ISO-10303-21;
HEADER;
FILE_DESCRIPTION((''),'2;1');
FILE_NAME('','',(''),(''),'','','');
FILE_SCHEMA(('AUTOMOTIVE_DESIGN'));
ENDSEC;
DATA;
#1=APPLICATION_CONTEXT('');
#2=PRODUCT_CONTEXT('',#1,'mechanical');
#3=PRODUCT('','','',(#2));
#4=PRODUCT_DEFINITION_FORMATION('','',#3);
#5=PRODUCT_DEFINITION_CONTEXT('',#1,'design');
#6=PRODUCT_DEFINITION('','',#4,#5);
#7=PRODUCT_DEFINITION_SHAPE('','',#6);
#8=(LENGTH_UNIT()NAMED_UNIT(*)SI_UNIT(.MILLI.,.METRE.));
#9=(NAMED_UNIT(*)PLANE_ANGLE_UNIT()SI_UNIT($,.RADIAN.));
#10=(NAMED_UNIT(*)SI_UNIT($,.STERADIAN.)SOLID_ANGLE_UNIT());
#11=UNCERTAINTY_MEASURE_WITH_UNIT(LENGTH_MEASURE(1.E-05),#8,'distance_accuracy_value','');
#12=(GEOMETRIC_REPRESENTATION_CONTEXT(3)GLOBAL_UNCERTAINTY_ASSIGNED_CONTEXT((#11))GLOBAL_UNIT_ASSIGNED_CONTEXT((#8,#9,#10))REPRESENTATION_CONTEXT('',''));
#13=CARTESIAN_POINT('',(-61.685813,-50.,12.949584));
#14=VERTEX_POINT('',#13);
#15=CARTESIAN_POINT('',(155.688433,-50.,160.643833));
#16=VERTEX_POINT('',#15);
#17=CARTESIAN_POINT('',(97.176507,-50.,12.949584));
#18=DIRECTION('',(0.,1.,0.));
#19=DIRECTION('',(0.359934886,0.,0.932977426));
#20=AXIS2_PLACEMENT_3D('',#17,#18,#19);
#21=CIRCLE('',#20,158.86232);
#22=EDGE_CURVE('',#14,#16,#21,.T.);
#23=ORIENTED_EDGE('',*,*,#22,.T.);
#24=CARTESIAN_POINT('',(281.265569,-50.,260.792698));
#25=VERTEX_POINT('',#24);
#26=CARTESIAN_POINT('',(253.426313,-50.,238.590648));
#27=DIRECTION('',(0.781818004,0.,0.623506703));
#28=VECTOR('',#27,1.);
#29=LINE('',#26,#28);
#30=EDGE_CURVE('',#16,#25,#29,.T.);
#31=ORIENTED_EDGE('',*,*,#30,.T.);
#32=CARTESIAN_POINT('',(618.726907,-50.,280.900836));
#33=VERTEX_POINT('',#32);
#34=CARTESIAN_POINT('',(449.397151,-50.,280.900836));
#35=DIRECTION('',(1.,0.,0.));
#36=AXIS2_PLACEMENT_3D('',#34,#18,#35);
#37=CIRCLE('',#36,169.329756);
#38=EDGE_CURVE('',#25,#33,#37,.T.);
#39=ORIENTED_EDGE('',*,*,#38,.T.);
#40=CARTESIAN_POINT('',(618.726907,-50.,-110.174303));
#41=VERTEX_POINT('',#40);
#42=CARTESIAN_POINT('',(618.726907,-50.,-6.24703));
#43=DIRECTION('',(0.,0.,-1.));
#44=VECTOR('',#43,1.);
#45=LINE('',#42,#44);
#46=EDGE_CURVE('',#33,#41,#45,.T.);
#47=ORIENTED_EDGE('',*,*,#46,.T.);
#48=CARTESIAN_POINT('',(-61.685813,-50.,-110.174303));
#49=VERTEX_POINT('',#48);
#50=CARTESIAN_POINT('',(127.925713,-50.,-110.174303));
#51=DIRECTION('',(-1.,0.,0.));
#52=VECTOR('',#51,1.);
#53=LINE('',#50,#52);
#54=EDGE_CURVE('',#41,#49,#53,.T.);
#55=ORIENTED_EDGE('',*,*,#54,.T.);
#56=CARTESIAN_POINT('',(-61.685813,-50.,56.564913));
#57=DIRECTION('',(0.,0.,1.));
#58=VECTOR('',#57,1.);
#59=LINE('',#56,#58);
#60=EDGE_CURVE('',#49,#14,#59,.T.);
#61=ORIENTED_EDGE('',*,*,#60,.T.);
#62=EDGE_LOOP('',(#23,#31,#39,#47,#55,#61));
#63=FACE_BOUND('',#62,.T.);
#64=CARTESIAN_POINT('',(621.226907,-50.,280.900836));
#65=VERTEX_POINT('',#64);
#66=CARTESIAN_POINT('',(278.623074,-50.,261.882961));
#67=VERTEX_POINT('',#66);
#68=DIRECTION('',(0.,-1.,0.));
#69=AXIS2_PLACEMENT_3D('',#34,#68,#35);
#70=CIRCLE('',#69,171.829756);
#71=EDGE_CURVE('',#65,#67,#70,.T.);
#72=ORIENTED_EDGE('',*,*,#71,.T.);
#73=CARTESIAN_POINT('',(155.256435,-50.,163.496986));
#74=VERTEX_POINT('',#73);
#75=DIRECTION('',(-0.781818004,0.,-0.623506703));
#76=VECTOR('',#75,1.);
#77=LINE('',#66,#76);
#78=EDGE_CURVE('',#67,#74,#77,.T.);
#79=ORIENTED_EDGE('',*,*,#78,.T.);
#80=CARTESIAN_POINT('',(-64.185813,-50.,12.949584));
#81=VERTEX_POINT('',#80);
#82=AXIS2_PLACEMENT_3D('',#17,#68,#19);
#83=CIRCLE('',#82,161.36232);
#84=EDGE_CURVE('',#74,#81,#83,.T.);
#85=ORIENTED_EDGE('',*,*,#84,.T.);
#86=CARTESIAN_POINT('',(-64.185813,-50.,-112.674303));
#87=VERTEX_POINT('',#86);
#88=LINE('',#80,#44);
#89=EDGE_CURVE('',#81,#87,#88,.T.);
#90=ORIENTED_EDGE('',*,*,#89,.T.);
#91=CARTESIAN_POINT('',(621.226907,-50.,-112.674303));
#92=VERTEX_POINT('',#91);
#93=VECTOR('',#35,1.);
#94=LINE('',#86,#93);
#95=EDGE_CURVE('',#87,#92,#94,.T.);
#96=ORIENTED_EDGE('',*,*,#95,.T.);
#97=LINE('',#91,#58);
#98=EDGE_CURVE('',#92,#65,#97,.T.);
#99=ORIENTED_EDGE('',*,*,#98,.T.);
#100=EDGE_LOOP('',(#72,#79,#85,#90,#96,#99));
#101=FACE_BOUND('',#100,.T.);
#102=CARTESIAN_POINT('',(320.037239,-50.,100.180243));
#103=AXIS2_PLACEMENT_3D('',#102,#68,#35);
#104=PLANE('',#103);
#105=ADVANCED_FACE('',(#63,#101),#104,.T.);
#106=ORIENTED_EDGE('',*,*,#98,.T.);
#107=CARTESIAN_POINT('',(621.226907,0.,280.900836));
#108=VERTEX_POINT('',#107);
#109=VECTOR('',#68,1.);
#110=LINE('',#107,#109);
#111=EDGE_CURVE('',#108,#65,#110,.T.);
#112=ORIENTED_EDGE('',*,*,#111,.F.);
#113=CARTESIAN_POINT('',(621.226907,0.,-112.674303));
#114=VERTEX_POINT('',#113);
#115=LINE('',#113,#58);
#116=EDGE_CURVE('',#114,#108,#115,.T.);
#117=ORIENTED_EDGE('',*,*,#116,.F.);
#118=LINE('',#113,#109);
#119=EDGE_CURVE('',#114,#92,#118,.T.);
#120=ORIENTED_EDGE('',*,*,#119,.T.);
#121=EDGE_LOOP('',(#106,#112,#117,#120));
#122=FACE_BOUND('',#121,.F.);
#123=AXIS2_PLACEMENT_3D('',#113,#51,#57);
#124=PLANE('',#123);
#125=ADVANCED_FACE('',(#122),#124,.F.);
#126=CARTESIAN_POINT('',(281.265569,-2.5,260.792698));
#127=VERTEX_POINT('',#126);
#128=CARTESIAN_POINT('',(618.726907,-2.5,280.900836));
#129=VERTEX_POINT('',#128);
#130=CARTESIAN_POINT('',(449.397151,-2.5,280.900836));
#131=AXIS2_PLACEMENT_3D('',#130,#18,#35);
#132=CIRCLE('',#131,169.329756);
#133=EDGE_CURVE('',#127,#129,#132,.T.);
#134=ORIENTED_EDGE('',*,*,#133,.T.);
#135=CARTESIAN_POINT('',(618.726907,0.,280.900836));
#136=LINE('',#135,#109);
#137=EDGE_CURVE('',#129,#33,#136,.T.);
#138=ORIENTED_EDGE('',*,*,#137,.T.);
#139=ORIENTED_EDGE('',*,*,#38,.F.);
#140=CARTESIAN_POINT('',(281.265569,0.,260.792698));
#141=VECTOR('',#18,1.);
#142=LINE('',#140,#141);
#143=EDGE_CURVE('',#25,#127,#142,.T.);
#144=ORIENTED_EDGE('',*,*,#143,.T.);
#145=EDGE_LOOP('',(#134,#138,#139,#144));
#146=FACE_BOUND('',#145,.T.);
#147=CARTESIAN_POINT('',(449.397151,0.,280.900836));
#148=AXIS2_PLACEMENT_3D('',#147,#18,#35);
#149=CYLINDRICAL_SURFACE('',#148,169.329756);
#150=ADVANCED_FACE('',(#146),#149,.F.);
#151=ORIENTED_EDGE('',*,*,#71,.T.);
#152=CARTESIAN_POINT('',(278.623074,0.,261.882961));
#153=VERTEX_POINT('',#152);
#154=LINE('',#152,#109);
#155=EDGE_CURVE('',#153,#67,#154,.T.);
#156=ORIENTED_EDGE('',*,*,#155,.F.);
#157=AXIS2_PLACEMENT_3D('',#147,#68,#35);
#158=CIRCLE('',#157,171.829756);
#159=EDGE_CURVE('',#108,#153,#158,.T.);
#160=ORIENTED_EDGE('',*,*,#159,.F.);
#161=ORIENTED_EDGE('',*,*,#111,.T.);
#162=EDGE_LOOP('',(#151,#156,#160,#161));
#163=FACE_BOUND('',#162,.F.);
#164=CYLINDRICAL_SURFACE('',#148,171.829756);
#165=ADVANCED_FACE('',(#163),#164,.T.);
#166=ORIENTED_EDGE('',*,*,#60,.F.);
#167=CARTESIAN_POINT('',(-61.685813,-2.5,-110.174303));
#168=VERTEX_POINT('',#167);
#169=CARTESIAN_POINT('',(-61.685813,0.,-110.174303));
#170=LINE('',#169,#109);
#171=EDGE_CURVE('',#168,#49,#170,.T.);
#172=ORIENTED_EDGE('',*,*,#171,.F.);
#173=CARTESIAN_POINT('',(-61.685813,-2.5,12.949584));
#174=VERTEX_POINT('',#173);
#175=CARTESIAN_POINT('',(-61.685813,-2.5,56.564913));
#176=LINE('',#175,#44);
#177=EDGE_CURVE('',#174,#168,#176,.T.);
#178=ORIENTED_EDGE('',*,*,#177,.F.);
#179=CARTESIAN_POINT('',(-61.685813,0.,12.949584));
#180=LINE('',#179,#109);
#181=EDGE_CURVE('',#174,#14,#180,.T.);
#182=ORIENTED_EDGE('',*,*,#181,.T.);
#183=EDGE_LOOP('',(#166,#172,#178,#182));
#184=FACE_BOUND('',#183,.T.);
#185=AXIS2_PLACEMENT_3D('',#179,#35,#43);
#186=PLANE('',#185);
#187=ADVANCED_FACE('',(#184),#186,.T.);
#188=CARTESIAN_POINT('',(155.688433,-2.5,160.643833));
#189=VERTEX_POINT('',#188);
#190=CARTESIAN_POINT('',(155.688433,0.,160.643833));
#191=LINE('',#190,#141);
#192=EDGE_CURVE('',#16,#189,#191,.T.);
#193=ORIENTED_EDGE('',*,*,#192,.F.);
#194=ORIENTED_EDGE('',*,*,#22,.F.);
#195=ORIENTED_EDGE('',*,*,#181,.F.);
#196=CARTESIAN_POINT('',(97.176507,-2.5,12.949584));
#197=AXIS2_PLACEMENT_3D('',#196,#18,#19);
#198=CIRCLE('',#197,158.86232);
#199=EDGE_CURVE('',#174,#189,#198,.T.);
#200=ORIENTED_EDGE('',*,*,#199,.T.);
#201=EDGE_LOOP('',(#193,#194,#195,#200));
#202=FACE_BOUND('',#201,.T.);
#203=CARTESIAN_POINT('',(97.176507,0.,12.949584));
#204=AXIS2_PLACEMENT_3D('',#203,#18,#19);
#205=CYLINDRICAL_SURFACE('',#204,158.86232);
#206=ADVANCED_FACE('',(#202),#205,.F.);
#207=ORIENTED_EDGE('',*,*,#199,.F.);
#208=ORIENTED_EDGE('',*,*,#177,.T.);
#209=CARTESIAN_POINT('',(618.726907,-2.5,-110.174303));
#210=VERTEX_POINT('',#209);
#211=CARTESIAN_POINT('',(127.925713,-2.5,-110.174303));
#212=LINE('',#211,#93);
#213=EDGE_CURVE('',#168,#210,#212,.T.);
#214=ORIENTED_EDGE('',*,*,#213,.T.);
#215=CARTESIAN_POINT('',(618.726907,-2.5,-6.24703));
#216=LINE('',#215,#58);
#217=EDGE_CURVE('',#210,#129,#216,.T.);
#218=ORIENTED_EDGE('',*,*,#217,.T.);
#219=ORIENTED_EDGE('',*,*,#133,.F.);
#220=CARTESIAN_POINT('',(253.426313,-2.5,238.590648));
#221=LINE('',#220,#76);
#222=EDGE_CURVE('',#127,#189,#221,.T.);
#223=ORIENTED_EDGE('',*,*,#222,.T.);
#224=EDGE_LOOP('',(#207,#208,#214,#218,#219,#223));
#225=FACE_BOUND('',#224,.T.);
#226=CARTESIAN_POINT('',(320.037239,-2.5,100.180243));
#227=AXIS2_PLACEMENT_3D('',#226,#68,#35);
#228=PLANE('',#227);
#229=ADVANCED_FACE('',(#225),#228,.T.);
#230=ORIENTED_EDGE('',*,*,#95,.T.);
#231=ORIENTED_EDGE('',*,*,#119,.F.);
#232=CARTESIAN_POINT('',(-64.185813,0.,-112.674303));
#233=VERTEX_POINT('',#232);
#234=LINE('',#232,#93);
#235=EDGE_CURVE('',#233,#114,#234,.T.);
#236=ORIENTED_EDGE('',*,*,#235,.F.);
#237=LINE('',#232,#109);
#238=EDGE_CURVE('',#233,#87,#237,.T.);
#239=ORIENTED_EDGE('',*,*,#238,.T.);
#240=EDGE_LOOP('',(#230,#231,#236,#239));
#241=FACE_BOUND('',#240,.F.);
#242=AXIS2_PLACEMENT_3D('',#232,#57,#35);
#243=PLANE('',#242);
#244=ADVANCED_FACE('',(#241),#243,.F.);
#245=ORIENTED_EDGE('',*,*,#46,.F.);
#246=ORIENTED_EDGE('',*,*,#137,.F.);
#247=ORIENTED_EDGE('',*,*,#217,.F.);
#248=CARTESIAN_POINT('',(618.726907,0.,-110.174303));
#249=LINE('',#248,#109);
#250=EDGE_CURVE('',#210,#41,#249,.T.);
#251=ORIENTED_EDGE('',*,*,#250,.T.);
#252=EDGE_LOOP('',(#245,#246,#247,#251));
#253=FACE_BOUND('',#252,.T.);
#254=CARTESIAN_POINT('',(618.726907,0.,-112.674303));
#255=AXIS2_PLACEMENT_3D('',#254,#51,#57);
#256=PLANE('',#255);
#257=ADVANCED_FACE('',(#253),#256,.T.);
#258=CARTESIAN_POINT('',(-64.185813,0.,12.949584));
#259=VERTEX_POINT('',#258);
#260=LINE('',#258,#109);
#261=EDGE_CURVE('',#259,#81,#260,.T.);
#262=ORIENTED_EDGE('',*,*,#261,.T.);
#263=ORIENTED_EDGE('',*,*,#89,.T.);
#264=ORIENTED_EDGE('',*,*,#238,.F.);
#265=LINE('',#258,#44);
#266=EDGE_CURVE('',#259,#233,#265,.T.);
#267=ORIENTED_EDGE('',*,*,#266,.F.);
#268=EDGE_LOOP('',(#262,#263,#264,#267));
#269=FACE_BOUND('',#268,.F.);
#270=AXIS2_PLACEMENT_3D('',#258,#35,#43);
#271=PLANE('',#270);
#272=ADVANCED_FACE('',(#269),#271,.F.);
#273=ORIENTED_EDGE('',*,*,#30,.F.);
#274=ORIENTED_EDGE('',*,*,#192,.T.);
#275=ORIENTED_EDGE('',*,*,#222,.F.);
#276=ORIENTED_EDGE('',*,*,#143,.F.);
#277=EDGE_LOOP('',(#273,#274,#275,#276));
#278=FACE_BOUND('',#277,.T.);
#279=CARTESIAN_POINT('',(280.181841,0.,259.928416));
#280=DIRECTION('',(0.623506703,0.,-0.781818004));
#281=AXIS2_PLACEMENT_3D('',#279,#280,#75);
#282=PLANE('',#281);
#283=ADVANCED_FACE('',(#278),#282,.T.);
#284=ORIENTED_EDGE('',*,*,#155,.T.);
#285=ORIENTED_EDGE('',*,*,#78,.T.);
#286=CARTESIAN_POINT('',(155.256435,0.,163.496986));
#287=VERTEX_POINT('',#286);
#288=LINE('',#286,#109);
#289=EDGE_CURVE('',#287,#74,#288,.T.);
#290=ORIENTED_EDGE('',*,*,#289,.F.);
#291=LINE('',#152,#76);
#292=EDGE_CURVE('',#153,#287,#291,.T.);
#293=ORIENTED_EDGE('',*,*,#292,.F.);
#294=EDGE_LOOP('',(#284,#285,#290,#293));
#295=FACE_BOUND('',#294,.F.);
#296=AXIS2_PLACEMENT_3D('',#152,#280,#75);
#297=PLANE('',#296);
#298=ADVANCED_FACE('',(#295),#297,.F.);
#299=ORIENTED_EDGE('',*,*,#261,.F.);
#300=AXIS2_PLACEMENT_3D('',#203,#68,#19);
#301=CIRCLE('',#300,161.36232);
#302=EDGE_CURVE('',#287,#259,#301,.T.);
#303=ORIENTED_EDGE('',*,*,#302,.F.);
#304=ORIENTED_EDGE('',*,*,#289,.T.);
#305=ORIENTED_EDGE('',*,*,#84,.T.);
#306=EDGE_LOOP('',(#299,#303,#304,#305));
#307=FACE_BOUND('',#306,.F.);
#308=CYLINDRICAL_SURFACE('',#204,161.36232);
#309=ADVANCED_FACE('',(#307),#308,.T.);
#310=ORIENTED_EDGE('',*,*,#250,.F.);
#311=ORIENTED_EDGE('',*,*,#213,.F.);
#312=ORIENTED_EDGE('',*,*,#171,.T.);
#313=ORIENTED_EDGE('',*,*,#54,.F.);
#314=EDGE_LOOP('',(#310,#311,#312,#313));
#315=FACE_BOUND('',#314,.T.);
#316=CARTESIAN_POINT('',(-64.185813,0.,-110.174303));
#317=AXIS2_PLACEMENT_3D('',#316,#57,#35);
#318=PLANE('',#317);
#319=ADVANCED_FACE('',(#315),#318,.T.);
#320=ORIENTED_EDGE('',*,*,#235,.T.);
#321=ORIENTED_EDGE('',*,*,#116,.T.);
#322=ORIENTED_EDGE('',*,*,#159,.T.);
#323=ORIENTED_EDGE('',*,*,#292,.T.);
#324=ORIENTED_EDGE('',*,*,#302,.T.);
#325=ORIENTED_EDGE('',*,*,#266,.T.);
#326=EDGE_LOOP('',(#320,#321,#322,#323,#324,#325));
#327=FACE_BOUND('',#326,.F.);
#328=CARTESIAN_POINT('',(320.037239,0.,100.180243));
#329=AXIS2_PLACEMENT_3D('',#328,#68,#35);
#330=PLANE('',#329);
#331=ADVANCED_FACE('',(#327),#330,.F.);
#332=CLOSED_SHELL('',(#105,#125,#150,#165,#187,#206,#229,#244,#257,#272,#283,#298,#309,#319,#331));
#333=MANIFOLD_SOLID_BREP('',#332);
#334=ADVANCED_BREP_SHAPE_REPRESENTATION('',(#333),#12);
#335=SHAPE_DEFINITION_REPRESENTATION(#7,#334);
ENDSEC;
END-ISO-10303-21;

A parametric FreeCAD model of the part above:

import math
import FreeCAD as App
import Part
import Sketcher


def faces_at(feature, points):
    """Names of the faces that lie closest to the given points."""
    faces = feature.Shape.Faces
    near = lambda p: min(range(len(faces)), key=lambda i: faces[i].distToShape(Part.Vertex(*p))[0])
    return sorted({f"Face{near(p) + 1}" for p in points})

doc = App.newDocument("Part")
body = doc.addObject("PartDesign::Body", "Body")

sketch1 = body.newObject("Sketcher::SketchObject", "Sketch")
sketch1.AttachmentSupport = (doc.getObject("XZ_Plane"), [""])
sketch1.MapMode = "FlatFace"
sketch1.addGeometry(Part.ArcOfCircle(Part.Circle(App.Vector(97.176507, 12.949584, 0), App.Vector(0, 0, 1), 161.36232), math.radians(68.903803), math.radians(180)), False)
sketch1.addGeometry(Part.LineSegment(App.Vector(-64.185813, 12.949584, 0), App.Vector(-64.185813, -112.674303, 0)), False)
sketch1.addGeometry(Part.LineSegment(App.Vector(-64.185813, -112.674303, 0), App.Vector(621.226907, -112.674303, 0)), False)
sketch1.addGeometry(Part.LineSegment(App.Vector(621.226907, -112.674303, 0), App.Vector(621.226907, 280.900836, 0)), False)
sketch1.addGeometry(Part.ArcOfCircle(Part.Circle(App.Vector(449.397151, 280.900836, 0), App.Vector(0, 0, 1), 171.829756), math.radians(0), math.radians(186.354435)), False)
sketch1.addGeometry(Part.LineSegment(App.Vector(278.623074, 261.882961, 0), App.Vector(155.256435, 163.496986, 0)), False)
sketch1.addConstraint(Sketcher.Constraint("Tangent", 0, 2, 1, 1))
sketch1.addConstraint(Sketcher.Constraint("Coincident", 1, 2, 2, 1))
sketch1.addConstraint(Sketcher.Constraint("Coincident", 2, 2, 3, 1))
sketch1.addConstraint(Sketcher.Constraint("Tangent", 3, 2, 4, 1))
sketch1.addConstraint(Sketcher.Constraint("Coincident", 4, 2, 5, 1))
sketch1.addConstraint(Sketcher.Constraint("Coincident", 5, 2, 0, 1))
sketch1.addConstraint(Sketcher.Constraint("Vertical", 1))
sketch1.addConstraint(Sketcher.Constraint("Horizontal", 2))
sketch1.addConstraint(Sketcher.Constraint("Vertical", 3))
sketch1.addConstraint(Sketcher.Constraint("Radius", 0, 161.36232))
sketch1.addConstraint(Sketcher.Constraint("Radius", 4, 171.829756))
sketch1.addConstraint(Sketcher.Constraint("DistanceX", 2, 1, 2, 2, 685.41272))
sketch1.addConstraint(Sketcher.Constraint("DistanceY", 3, 1, 3, 2, 393.575139))
sketch1.addConstraint(Sketcher.Constraint("DistanceY", 0, 3, 5, 2, 150.547402))
sketch1.addConstraint(Sketcher.Constraint("DistanceY", 1, 2, 1, 1, 125.623887))
sketch1.addConstraint(Sketcher.Constraint("DistanceX", -1, 1, 4, 3, 449.397151))
sketch1.addConstraint(Sketcher.Constraint("DistanceY", -1, 1, 4, 2, 261.882961))
sketch1.addConstraint(Sketcher.Constraint("Distance", 5, 157.794574))
pad1 = body.newObject("PartDesign::Pad", "Pad")
pad1.Profile = sketch1
pad1.Length = 50
doc.recompute()

thickness = body.newObject("PartDesign::Thickness", "Thickness")
thickness.Base = (pad1, faces_at(pad1, [(278.521, -50, 170.028)]))
thickness.Value = 2.5
thickness.Reversed = True
thickness.Join = "Intersection"

doc.recompute()
